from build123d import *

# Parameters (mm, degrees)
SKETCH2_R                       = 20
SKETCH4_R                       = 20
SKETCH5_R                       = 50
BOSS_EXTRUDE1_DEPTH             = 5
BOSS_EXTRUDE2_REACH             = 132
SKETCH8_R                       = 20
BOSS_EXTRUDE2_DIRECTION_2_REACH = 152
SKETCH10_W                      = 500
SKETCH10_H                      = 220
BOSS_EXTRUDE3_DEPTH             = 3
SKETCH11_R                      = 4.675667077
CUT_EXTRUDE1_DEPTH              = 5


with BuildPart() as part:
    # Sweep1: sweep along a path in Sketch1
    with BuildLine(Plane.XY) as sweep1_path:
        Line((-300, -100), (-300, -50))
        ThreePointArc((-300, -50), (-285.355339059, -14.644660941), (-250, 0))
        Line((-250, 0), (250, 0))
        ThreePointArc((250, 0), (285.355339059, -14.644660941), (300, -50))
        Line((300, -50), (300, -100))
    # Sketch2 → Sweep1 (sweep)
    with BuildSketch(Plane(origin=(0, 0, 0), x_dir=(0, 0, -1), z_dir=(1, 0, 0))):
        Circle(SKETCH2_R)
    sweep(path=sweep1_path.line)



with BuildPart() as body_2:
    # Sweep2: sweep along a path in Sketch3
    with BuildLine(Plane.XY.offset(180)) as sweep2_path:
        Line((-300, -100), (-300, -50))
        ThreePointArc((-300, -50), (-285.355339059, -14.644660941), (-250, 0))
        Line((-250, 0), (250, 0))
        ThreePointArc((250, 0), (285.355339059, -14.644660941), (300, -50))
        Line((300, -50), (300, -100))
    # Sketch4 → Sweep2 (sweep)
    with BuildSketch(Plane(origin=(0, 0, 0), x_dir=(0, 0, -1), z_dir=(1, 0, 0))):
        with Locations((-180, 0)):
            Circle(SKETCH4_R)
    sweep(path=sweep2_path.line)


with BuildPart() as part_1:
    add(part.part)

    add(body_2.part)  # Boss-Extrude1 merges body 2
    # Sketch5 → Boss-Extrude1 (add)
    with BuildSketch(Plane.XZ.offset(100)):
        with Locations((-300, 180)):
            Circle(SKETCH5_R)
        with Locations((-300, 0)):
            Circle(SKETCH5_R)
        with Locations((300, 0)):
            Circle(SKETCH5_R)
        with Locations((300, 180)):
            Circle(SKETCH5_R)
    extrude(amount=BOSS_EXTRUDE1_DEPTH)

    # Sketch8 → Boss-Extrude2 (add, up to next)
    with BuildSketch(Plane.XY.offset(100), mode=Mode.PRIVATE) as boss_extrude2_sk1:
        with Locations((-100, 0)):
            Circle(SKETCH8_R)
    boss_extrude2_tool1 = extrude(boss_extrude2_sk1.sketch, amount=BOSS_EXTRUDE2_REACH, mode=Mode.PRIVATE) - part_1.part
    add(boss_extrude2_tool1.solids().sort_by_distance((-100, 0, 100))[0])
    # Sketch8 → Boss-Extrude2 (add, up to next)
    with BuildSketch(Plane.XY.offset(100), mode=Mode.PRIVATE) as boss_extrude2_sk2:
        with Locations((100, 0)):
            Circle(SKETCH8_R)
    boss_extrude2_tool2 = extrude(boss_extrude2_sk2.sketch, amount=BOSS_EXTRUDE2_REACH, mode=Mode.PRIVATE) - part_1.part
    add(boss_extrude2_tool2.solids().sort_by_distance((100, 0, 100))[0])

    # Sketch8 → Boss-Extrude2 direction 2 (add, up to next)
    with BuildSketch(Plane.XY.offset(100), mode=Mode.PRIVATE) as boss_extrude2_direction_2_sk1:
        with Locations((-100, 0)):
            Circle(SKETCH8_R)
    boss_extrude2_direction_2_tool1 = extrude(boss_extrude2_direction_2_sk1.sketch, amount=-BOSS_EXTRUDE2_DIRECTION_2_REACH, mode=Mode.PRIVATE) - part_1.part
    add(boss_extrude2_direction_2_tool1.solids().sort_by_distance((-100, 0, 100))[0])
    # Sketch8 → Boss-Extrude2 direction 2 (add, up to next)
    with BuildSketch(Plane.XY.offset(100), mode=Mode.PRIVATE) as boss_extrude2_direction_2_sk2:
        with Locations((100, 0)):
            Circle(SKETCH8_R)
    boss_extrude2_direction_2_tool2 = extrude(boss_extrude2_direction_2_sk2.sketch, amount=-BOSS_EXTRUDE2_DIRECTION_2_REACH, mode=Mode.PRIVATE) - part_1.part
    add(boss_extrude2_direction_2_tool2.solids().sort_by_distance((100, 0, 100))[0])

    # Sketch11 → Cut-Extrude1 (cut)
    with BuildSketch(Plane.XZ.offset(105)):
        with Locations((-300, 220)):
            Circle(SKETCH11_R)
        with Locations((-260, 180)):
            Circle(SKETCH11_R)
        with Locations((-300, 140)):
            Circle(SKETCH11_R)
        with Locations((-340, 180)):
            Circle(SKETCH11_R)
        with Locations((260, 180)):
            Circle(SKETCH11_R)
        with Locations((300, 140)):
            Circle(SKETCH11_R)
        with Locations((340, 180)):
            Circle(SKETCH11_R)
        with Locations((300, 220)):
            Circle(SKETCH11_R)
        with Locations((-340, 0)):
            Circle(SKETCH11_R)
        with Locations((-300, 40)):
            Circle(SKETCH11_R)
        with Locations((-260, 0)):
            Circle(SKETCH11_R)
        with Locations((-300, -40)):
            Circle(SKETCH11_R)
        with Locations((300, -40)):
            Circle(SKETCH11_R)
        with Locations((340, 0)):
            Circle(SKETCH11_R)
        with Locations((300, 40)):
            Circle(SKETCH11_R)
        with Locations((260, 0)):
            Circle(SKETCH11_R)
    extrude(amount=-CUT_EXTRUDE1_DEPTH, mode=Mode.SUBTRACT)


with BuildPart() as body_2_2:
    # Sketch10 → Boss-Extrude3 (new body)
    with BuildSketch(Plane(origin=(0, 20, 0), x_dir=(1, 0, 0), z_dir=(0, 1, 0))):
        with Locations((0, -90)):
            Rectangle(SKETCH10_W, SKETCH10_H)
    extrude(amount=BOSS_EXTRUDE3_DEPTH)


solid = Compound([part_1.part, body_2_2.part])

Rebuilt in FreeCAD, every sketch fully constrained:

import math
import FreeCAD as App
import Part
import Sketcher


def add_polygon(sketch, points):
    """Adds a closed chain of lines whose ends are joined by coincident constraints."""
    first, n = sketch.GeometryCount, len(points)
    for a, b in zip(points, points[1:] + points[:1]):
        sketch.addGeometry(Part.LineSegment(App.Vector(*a, 0), App.Vector(*b, 0)), False)
    for i in range(n):
        sketch.addConstraint(Sketcher.Constraint("Coincident", first + i, 2, first + (i + 1) % n, 1))

doc = App.newDocument("Part")
body = doc.addObject("PartDesign::Body", "Body")

# Sketch on YZ plane
sketch1 = doc.addObject("Sketcher::SketchObject", "Sketch")
body.addObject(sketch1)
sketch1.AttachmentSupport = (doc.YZ_Plane, [""])
sketch1.MapMode = "FlatFace"
sketch1.addGeometry(Part.Circle(App.Vector(0, 0, 0), App.Vector(0, 0, 1), 20), False)
sketch1.addConstraint(Sketcher.Constraint("Coincident", 0, 3, -1, 1))
sketch1.addConstraint(Sketcher.Constraint("Diameter", 0, 40.0))

# Sketch on XY plane
sketch2 = doc.addObject("Sketcher::SketchObject", "Sketch001")
body.addObject(sketch2)
sketch2.AttachmentSupport = (doc.XY_Plane, [""])
sketch2.MapMode = "FlatFace"
sketch2.addGeometry(Part.LineSegment(App.Vector(-300, -100, 0), App.Vector(-300, -50, 0)), False)
sketch2.addGeometry(Part.ArcOfCircle(Part.Circle(App.Vector(-250, -50, 0), App.Vector(0, 0, 1), 50), math.radians(90), math.radians(180)), False)
sketch2.addGeometry(Part.LineSegment(App.Vector(-250, 0, 0), App.Vector(250, 0, 0)), False)
sketch2.addGeometry(Part.ArcOfCircle(Part.Circle(App.Vector(250, -50, 0), App.Vector(0, 0, 1), 50), math.radians(0), math.radians(90)), False)
sketch2.addGeometry(Part.LineSegment(App.Vector(300, -50, 0), App.Vector(300, -100, 0)), False)
sketch2.addConstraint(Sketcher.Constraint("Tangent", 0, 2, 1, 2))
sketch2.addConstraint(Sketcher.Constraint("Tangent", 1, 1, 2, 1))
sketch2.addConstraint(Sketcher.Constraint("Tangent", 2, 2, 3, 2))
sketch2.addConstraint(Sketcher.Constraint("Tangent", 3, 1, 4, 1))
sketch2.addConstraint(Sketcher.Constraint("Vertical", 0))
sketch2.addConstraint(Sketcher.Constraint("Horizontal", 2))
sketch2.addConstraint(Sketcher.Constraint("Vertical", 4))
sketch2.addConstraint(Sketcher.Constraint("Equal", 1, 3))
sketch2.addConstraint(Sketcher.Constraint("Symmetric", 1, 1, 2, 2, -1, 1))
sketch2.addConstraint(Sketcher.Constraint("Horizontal", 0, 1, 4, 2))
sketch2.addConstraint(Sketcher.Constraint("Radius", 1, 50.0))
sketch2.addConstraint(Sketcher.Constraint("DistanceX", 2, 1, 2, 2, 500.0))
sketch2.addConstraint(Sketcher.Constraint("DistanceY", 0, 1, 0, 2, 50.0))
doc.recompute()

additivepipe = doc.addObject("PartDesign::AdditivePipe", "AdditivePipe")
body.addObject(additivepipe)
additivepipe.Profile = sketch1
additivepipe.Spine = (sketch2, ["Edge1", "Edge2", "Edge3", "Edge4", "Edge5"])
body2 = doc.addObject("PartDesign::Body", "Body001")

# Sketch on YZ plane
sketch3 = doc.addObject("Sketcher::SketchObject", "Sketch002")
body2.addObject(sketch3)
sketch3.AttachmentSupport = (doc.getObject("YZ_Plane001"), [""])
sketch3.MapMode = "FlatFace"
sketch3.addGeometry(Part.Circle(App.Vector(0, 180, 0), App.Vector(0, 0, 1), 20), False)
sketch3.addConstraint(Sketcher.Constraint("PointOnObject", 0, 3, -2))
sketch3.addConstraint(Sketcher.Constraint("Diameter", 0, 40.0))
sketch3.addConstraint(Sketcher.Constraint("DistanceY", -1, 1, 0, 3, 180.0))

# Sketch on XY plane
sketch4 = doc.addObject("Sketcher::SketchObject", "Sketch003")
body2.addObject(sketch4)
sketch4.AttachmentSupport = (doc.getObject("XY_Plane001"), [""])
sketch4.MapMode = "FlatFace"
sketch4.AttachmentOffset = App.Placement(App.Vector(0, 0, 180), App.Rotation())
sketch4.addGeometry(Part.LineSegment(App.Vector(-300, -100, 0), App.Vector(-300, -50, 0)), False)
sketch4.addGeometry(Part.ArcOfCircle(Part.Circle(App.Vector(-250, -50, 0), App.Vector(0, 0, 1), 50), math.radians(90), math.radians(180)), False)
sketch4.addGeometry(Part.LineSegment(App.Vector(-250, 0, 0), App.Vector(250, 0, 0)), False)
sketch4.addGeometry(Part.ArcOfCircle(Part.Circle(App.Vector(250, -50, 0), App.Vector(0, 0, 1), 50), math.radians(0), math.radians(90)), False)
sketch4.addGeometry(Part.LineSegment(App.Vector(300, -50, 0), App.Vector(300, -100, 0)), False)
sketch4.addConstraint(Sketcher.Constraint("Tangent", 0, 2, 1, 2))
sketch4.addConstraint(Sketcher.Constraint("Tangent", 1, 1, 2, 1))
sketch4.addConstraint(Sketcher.Constraint("Tangent", 2, 2, 3, 2))
sketch4.addConstraint(Sketcher.Constraint("Tangent", 3, 1, 4, 1))
sketch4.addConstraint(Sketcher.Constraint("Vertical", 0))
sketch4.addConstraint(Sketcher.Constraint("Horizontal", 2))
sketch4.addConstraint(Sketcher.Constraint("Vertical", 4))
sketch4.addConstraint(Sketcher.Constraint("Equal", 1, 3))
sketch4.addConstraint(Sketcher.Constraint("Symmetric", 1, 1, 2, 2, -1, 1))
sketch4.addConstraint(Sketcher.Constraint("Horizontal", 0, 1, 4, 2))
sketch4.addConstraint(Sketcher.Constraint("Radius", 1, 50.0))
sketch4.addConstraint(Sketcher.Constraint("DistanceX", 2, 1, 2, 2, 500.0))
sketch4.addConstraint(Sketcher.Constraint("DistanceY", 0, 1, 0, 2, 50.0))
doc.recompute()

additivepipe2 = doc.addObject("PartDesign::AdditivePipe", "AdditivePipe001")
body2.addObject(additivepipe2)
additivepipe2.Profile = sketch3
additivepipe2.Spine = (sketch4, ["Edge1", "Edge2", "Edge3", "Edge4", "Edge5"])
body.AllowCompound = True
doc.recompute()

boolean = doc.addObject("PartDesign::Boolean", "Boolean")
body.addObject(boolean)
boolean.Type = "Fuse"
boolean.addObjects([body2])

# Sketch on XZ plane
sketch5 = doc.addObject("Sketcher::SketchObject", "Sketch004")
body.addObject(sketch5)
sketch5.AttachmentSupport = (doc.XZ_Plane, [""])
sketch5.MapMode = "FlatFace"
sketch5.AttachmentOffset = App.Placement(App.Vector(0, 0, 100), App.Rotation())
sketch5.addGeometry(Part.Circle(App.Vector(-300, 180, 0), App.Vector(0, 0, 1), 50), False)
sketch5.addGeometry(Part.Circle(App.Vector(-300, 0, 0), App.Vector(0, 0, 1), 50), False)
sketch5.addGeometry(Part.Circle(App.Vector(300, 0, 0), App.Vector(0, 0, 1), 50), False)
sketch5.addGeometry(Part.Circle(App.Vector(300, 180, 0), App.Vector(0, 0, 1), 50), False)
sketch5.addConstraint(Sketcher.Constraint("Equal", 0, 1))
sketch5.addConstraint(Sketcher.Constraint("Equal", 1, 2))
sketch5.addConstraint(Sketcher.Constraint("Equal", 2, 3))
sketch5.addConstraint(Sketcher.Constraint("Symmetric", 1, 3, 2, 3, -1, 1))
sketch5.addConstraint(Sketcher.Constraint("Symmetric", 0, 3, 3, 3, -2))
sketch5.addConstraint(Sketcher.Constraint("PointOnObject", 1, 3, -1))
sketch5.addConstraint(Sketcher.Constraint("Vertical", 0, 3, 1, 3))
sketch5.addConstraint(Sketcher.Constraint("Diameter", 0, 100.0))
sketch5.addConstraint(Sketcher.Constraint("DistanceX", 0, 3, -1, 1, 300.0))
sketch5.addConstraint(Sketcher.Constraint("DistanceY", -1, 1, 0, 3, 180.0))
pad1 = doc.addObject("PartDesign::Pad", "Pad")
body.addObject(pad1)
pad1.Profile = sketch5
pad1.Length = 5

# Sketch on XY plane
sketch6 = doc.addObject("Sketcher::SketchObject", "Sketch005")
body.addObject(sketch6)
sketch6.AttachmentSupport = (doc.XY_Plane, [""])
sketch6.MapMode = "FlatFace"
sketch6.AttachmentOffset = App.Placement(App.Vector(0, 0, 100), App.Rotation())
sketch6.addGeometry(Part.Circle(App.Vector(-100, 0, 0), App.Vector(0, 0, 1), 20), False)
sketch6.addConstraint(Sketcher.Constraint("PointOnObject", 0, 3, -1))
sketch6.addConstraint(Sketcher.Constraint("Diameter", 0, 40.0))
sketch6.addConstraint(Sketcher.Constraint("DistanceX", 0, 3, -1, 1, 100.0))
pad2 = doc.addObject("PartDesign::Pad", "Pad001")
body.addObject(pad2)
pad2.Profile = sketch6
pad2.Type = "UpToFirst"

# Sketch on XY plane
sketch7 = doc.addObject("Sketcher::SketchObject", "Sketch006")
body.addObject(sketch7)
sketch7.AttachmentSupport = (doc.XY_Plane, [""])
sketch7.MapMode = "FlatFace"
sketch7.AttachmentOffset = App.Placement(App.Vector(0, 0, 100), App.Rotation())
sketch7.addGeometry(Part.Circle(App.Vector(100, 0, 0), App.Vector(0, 0, 1), 20), False)
sketch7.addConstraint(Sketcher.Constraint("PointOnObject", 0, 3, -1))
sketch7.addConstraint(Sketcher.Constraint("Diameter", 0, 40.0))
sketch7.addConstraint(Sketcher.Constraint("DistanceX", -1, 1, 0, 3, 100.0))
pad3 = doc.addObject("PartDesign::Pad", "Pad002")
body.addObject(pad3)
pad3.Profile = sketch7
pad3.Type = "UpToFirst"

# Sketch on XY plane
sketch8 = doc.addObject("Sketcher::SketchObject", "Sketch007")
body.addObject(sketch8)
sketch8.AttachmentSupport = (doc.XY_Plane, [""])
sketch8.MapMode = "FlatFace"
sketch8.AttachmentOffset = App.Placement(App.Vector(0, 0, 100), App.Rotation())
sketch8.addGeometry(Part.Circle(App.Vector(-100, 0, 0), App.Vector(0, 0, 1), 20), False)
sketch8.addConstraint(Sketcher.Constraint("PointOnObject", 0, 3, -1))
sketch8.addConstraint(Sketcher.Constraint("Diameter", 0, 40.0))
sketch8.addConstraint(Sketcher.Constraint("DistanceX", 0, 3, -1, 1, 100.0))
pad4 = doc.addObject("PartDesign::Pad", "Pad003")
body.addObject(pad4)
pad4.Profile = sketch8
pad4.Type = "UpToFirst"
pad4.Reversed = True

# Sketch on XY plane
sketch9 = doc.addObject("Sketcher::SketchObject", "Sketch008")
body.addObject(sketch9)
sketch9.AttachmentSupport = (doc.XY_Plane, [""])
sketch9.MapMode = "FlatFace"
sketch9.AttachmentOffset = App.Placement(App.Vector(0, 0, 100), App.Rotation())
sketch9.addGeometry(Part.Circle(App.Vector(100, 0, 0), App.Vector(0, 0, 1), 20), False)
sketch9.addConstraint(Sketcher.Constraint("PointOnObject", 0, 3, -1))
sketch9.addConstraint(Sketcher.Constraint("Diameter", 0, 40.0))
sketch9.addConstraint(Sketcher.Constraint("DistanceX", -1, 1, 0, 3, 100.0))
pad5 = doc.addObject("PartDesign::Pad", "Pad004")
body.addObject(pad5)
pad5.Profile = sketch9
pad5.Type = "UpToFirst"
pad5.Reversed = True

# Sketch on XZ plane
sketch10 = doc.addObject("Sketcher::SketchObject", "Sketch009")
body.addObject(sketch10)
sketch10.AttachmentSupport = (doc.XZ_Plane, [""])
sketch10.MapMode = "FlatFace"
sketch10.AttachmentOffset = App.Placement(App.Vector(0, 0, 105), App.Rotation())
sketch10.addGeometry(Part.Circle(App.Vector(-300, 220, 0), App.Vector(0, 0, 1), 4.7), False)
sketch10.addGeometry(Part.Circle(App.Vector(-260, 180, 0), App.Vector(0, 0, 1), 4.7), False)
sketch10.addGeometry(Part.Circle(App.Vector(-300, 140, 0), App.Vector(0, 0, 1), 4.7), False)
sketch10.addGeometry(Part.Circle(App.Vector(-340, 180, 0), App.Vector(0, 0, 1), 4.7), False)
sketch10.addGeometry(Part.Circle(App.Vector(260, 180, 0), App.Vector(0, 0, 1), 4.7), False)
sketch10.addGeometry(Part.Circle(App.Vector(300, 140, 0), App.Vector(0, 0, 1), 4.7), False)
sketch10.addGeometry(Part.Circle(App.Vector(340, 180, 0), App.Vector(0, 0, 1), 4.7), False)
sketch10.addGeometry(Part.Circle(App.Vector(300, 220, 0), App.Vector(0, 0, 1), 4.7), False)
sketch10.addGeometry(Part.Circle(App.Vector(-340, 0, 0), App.Vector(0, 0, 1), 4.7), False)
sketch10.addGeometry(Part.Circle(App.Vector(-300, 40, 0), App.Vector(0, 0, 1), 4.7), False)
sketch10.addGeometry(Part.Circle(App.Vector(-260, 0, 0), App.Vector(0, 0, 1), 4.7), False)
sketch10.addGeometry(Part.Circle(App.Vector(-300, -40, 0), App.Vector(0, 0, 1), 4.7), False)
sketch10.addGeometry(Part.Circle(App.Vector(300, -40, 0), App.Vector(0, 0, 1), 4.7), False)
sketch10.addGeometry(Part.Circle(App.Vector(340, 0, 0), App.Vector(0, 0, 1), 4.7), False)
sketch10.addGeometry(Part.Circle(App.Vector(300, 40, 0), App.Vector(0, 0, 1), 4.7), False)
sketch10.addGeometry(Part.Circle(App.Vector(260, 0, 0), App.Vector(0, 0, 1), 4.7), False)
sketch10.addConstraint(Sketcher.Constraint("Equal", 0, 1))
sketch10.addConstraint(Sketcher.Constraint("Equal", 1, 2))
sketch10.addConstraint(Sketcher.Constraint("Equal", 2, 3))
sketch10.addConstraint(Sketcher.Constraint("Equal", 3, 4))
sketch10.addConstraint(Sketcher.Constraint("Equal", 4, 5))
sketch10.addConstraint(Sketcher.Constraint("Equal", 5, 6))
sketch10.addConstraint(Sketcher.Constraint("Equal", 6, 7))
sketch10.addConstraint(Sketcher.Constraint("Equal", 7, 8))
sketch10.addConstraint(Sketcher.Constraint("Equal", 8, 9))
sketch10.addConstraint(Sketcher.Constraint("Equal", 9, 10))
sketch10.addConstraint(Sketcher.Constraint("Equal", 10, 11))
sketch10.addConstraint(Sketcher.Constraint("Equal", 11, 12))
sketch10.addConstraint(Sketcher.Constraint("Equal", 12, 13))
sketch10.addConstraint(Sketcher.Constraint("Equal", 13, 14))
sketch10.addConstraint(Sketcher.Constraint("Equal", 14, 15))
sketch10.addConstraint(Sketcher.Constraint("Symmetric", 9, 3, 12, 3, -1, 1))
sketch10.addConstraint(Sketcher.Constraint("Symmetric", 8, 3, 13, 3, -1, 1))
sketch10.addConstraint(Sketcher.Constraint("Symmetric", 11, 3, 14, 3, -1, 1))
sketch10.addConstraint(Sketcher.Constraint("Symmetric", 10, 3, 15, 3, -1, 1))
sketch10.addConstraint(Sketcher.Constraint("Symmetric", 1, 3, 4, 3, -2))
sketch10.addConstraint(Sketcher.Constraint("Symmetric", 2, 3, 5, 3, -2))
sketch10.addConstraint(Sketcher.Constraint("Symmetric", 3, 3, 6, 3, -2))
sketch10.addConstraint(Sketcher.Constraint("Symmetric", 0, 3, 7, 3, -2))
sketch10.addConstraint(Sketcher.Constraint("Symmetric", 11, 3, 12, 3, -2))
sketch10.addConstraint(Sketcher.Constraint("PointOnObject", 8, 3, -1))
sketch10.addConstraint(Sketcher.Constraint("PointOnObject", 10, 3, -1))
sketch10.addConstraint(Sketcher.Constraint("Horizontal", 1, 3, 3, 3))
sketch10.addConstraint(Sketcher.Constraint("Vertical", 0, 3, 2, 3))
sketch10.addConstraint(Sketcher.Constraint("Vertical", 3, 3, 8, 3))
sketch10.addConstraint(Sketcher.Constraint("Vertical", 2, 3, 9, 3))
sketch10.addConstraint(Sketcher.Constraint("Vertical", 1, 3, 10, 3))
sketch10.addConstraint(Sketcher.Constraint("DistanceX", 0, 3, -1, 1, 300.0))
sketch10.addConstraint(Sketcher.Constraint("DistanceY", -1, 1, 0, 3, 220.0))
sketch10.addConstraint(Sketcher.Constraint("DistanceX", 1, 3, -1, 1, 260.0))
sketch10.addConstraint(Sketcher.Constraint("DistanceY", -1, 1, 1, 3, 180.0))
sketch10.addConstraint(Sketcher.Constraint("DistanceY", -1, 1, 2, 3, 140.0))
sketch10.addConstraint(Sketcher.Constraint("DistanceX", 3, 3, -1, 1, 340.0))
sketch10.addConstraint(Sketcher.Constraint("DistanceY", -1, 1, 9, 3, 40.0))
sketch10.addConstraint(Sketcher.Constraint("Diameter", 0, 9.351334))
pocket1 = doc.addObject("PartDesign::Pocket", "Pocket")
body.addObject(pocket1)
pocket1.Profile = sketch10
pocket1.Length = 5
body3 = doc.addObject("PartDesign::Body", "Body002")

# Sketch on XZ plane
sketch11 = doc.addObject("Sketcher::SketchObject", "Sketch010")
body3.addObject(sketch11)
sketch11.AttachmentSupport = (doc.getObject("XZ_Plane002"), [""])
sketch11.MapMode = "FlatFace"
sketch11.AttachmentOffset = App.Placement(App.Vector(0, 0, -20), App.Rotation())
add_polygon(sketch11, [(-250, -20), (-250, 200), (250, 200), (250, -20)])  # lines 0-3
sketch11.addConstraint(Sketcher.Constraint("Vertical", 0))
sketch11.addConstraint(Sketcher.Constraint("Horizontal", 1))
sketch11.addConstraint(Sketcher.Constraint("Vertical", 2))
sketch11.addConstraint(Sketcher.Constraint("Horizontal", 3))
sketch11.addConstraint(Sketcher.Constraint("DistanceX", 1, 1, 1, 2, 500.0))
sketch11.addConstraint(Sketcher.Constraint("DistanceY", 0, 1, 0, 2, 220.0))
sketch11.addConstraint(Sketcher.Constraint("DistanceX", 0, 2, -1, 1, 250.0))
sketch11.addConstraint(Sketcher.Constraint("DistanceY", -1, 1, 0, 2, 200.0))
pad6 = doc.addObject("PartDesign::Pad", "Pad005")
body3.addObject(pad6)
pad6.Profile = sketch11
pad6.Length = 3
pad6.Reversed = True

doc.recompute()
